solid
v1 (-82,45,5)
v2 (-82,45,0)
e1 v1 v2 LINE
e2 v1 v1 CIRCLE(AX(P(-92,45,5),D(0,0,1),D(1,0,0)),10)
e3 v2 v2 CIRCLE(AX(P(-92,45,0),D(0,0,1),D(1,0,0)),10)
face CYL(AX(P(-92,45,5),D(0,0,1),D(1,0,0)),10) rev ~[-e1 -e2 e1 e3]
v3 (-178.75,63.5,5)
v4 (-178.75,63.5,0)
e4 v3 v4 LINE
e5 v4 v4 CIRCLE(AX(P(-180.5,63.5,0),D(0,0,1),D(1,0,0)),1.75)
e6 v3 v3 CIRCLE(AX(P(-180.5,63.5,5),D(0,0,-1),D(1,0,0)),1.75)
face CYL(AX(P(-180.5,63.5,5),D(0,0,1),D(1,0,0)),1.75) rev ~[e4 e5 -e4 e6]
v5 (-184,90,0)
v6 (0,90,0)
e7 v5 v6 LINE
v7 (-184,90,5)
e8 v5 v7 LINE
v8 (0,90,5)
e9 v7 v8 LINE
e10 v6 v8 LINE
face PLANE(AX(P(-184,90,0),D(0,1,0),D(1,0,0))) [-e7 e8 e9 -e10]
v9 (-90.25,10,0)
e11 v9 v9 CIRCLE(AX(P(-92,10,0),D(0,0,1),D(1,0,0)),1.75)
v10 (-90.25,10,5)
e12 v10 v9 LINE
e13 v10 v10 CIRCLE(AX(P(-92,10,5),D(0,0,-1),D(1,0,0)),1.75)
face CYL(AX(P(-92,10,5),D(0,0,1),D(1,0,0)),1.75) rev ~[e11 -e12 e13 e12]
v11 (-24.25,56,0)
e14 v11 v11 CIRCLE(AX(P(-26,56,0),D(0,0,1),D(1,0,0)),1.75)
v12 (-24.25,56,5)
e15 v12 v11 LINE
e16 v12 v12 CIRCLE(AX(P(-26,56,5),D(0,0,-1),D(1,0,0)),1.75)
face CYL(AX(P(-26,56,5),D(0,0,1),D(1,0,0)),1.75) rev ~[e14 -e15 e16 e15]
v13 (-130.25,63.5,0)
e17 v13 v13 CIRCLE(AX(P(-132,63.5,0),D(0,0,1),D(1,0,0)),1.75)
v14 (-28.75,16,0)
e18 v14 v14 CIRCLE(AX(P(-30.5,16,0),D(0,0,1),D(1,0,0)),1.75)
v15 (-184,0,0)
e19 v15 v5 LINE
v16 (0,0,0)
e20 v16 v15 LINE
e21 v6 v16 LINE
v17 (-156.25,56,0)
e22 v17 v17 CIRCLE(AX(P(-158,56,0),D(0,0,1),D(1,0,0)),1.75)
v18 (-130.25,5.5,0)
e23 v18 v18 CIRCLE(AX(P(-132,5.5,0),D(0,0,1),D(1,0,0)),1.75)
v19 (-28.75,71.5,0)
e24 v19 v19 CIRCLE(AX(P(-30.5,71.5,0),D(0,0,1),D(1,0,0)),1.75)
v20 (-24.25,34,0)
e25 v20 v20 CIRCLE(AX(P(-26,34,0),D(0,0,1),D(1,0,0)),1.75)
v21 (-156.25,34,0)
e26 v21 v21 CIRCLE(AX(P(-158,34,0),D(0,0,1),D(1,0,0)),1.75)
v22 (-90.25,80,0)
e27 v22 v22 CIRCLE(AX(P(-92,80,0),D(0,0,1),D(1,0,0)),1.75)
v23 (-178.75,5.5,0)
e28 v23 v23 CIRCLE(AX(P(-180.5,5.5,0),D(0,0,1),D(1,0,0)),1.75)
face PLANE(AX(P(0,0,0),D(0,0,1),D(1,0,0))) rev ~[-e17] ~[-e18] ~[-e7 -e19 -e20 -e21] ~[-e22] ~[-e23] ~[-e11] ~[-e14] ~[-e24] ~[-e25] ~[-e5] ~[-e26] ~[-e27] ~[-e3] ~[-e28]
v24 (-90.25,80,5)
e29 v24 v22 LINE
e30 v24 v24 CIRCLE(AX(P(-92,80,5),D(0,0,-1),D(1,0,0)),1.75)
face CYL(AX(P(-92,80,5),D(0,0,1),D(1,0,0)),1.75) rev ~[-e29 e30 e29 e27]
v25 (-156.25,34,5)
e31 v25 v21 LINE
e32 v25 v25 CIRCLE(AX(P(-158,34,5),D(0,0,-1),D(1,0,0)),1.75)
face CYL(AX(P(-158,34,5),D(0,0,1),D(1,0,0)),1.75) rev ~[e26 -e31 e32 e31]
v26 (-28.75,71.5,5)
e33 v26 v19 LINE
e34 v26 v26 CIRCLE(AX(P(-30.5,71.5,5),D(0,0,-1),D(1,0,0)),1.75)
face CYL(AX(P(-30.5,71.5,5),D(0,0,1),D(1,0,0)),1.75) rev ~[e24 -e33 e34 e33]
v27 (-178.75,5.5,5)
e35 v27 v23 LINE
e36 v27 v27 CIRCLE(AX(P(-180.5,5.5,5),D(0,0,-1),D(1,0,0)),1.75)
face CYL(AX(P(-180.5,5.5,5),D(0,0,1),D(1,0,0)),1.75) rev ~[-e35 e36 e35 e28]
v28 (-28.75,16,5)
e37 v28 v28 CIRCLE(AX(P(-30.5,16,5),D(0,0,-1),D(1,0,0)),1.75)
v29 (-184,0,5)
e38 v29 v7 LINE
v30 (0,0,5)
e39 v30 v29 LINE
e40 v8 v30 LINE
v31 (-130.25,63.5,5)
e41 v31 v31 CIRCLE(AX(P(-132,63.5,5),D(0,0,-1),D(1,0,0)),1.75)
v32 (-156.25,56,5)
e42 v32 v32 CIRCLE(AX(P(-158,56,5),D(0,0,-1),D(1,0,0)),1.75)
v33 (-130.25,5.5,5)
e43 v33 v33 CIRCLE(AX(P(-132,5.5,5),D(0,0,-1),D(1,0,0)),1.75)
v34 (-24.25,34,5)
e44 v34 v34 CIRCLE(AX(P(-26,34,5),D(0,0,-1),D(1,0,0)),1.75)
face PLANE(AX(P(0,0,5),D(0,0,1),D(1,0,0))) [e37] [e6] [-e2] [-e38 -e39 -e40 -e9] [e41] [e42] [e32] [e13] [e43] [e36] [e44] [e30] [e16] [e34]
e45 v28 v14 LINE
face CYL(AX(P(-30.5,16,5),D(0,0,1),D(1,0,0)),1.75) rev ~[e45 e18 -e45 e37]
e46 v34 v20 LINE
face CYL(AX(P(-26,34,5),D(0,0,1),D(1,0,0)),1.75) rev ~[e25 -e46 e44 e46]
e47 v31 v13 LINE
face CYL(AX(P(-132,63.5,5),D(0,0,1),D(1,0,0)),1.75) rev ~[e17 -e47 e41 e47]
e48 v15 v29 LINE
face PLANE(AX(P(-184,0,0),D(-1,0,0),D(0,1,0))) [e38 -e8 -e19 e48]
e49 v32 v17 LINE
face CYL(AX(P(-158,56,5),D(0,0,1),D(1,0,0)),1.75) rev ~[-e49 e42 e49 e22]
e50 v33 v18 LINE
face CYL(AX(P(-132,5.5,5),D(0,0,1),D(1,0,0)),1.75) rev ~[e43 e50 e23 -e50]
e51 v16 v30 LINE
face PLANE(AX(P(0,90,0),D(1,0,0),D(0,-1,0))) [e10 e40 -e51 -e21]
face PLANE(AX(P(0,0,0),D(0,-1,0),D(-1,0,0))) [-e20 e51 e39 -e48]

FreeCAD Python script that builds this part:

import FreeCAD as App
import Part
import Sketcher
Q = App.Units.Quantity

doc = App.newDocument("Part")
body = doc.addObject("PartDesign::Body", "Body")

# Sketch on XY plane
sketch1 = body.newObject("Sketcher::SketchObject", "Sketch")
sketch1.AttachmentSupport = (doc.getObject("XY_Plane"), [""])
sketch1.MapMode = "FlatFace"
sketch1.addGeometry([
    Part.LineSegment(App.Vector(-184, 0, 0), App.Vector(0, 0, 0)),
    Part.LineSegment(App.Vector(0, 0, 0), App.Vector(0, 90, 0)),
    Part.LineSegment(App.Vector(0, 90, 0), App.Vector(-184, 90, 0)),
    Part.LineSegment(App.Vector(-184, 90, 0), App.Vector(-184, 0, 0)),
], False)
sketch1.addConstraint([
    Sketcher.Constraint("Coincident", 0, 2, 1, 1),
    Sketcher.Constraint("Coincident", 1, 2, 2, 1),
    Sketcher.Constraint("Coincident", 2, 2, 3, 1),
    Sketcher.Constraint("Coincident", 3, 2, 0, 1),
    Sketcher.Constraint("Horizontal", 0),
    Sketcher.Constraint("Vertical", 1),
    Sketcher.Constraint("Horizontal", 2),
    Sketcher.Constraint("Vertical", 3),
    Sketcher.Constraint("Coincident", 0, 2, -1, 1),
    Sketcher.Constraint("DistanceX", 0, 1, 0, 2, Q("184 mm")),
    Sketcher.Constraint("DistanceY", 1, 1, 1, 2, Q("90 mm")),
])
pad1 = body.newObject("PartDesign::Pad", "Pad")
pad1.Profile = sketch1
pad1.Length = 5

# Sketch on XY plane
sketch2 = body.newObject("Sketcher::SketchObject", "Sketch001")
sketch2.AttachmentSupport = (doc.getObject("XY_Plane"), [""])
sketch2.MapMode = "FlatFace"
sketch2.AttachmentOffset = App.Placement(App.Vector(0, 0, 5), App.Rotation())
sketch2.addGeometry([
    Part.Circle(App.Vector(-26, 56, 0), App.Vector(0, 0, 1), 1.8),
    Part.Circle(App.Vector(-26, 34, 0), App.Vector(0, 0, 1), 1.8),
    Part.Circle(App.Vector(-158, 56, 0), App.Vector(0, 0, 1), 1.8),
    Part.Circle(App.Vector(-158, 34, 0), App.Vector(0, 0, 1), 1.8),
], False)
sketch2.addConstraint([
    Sketcher.Constraint("Equal", 0, 1),
    Sketcher.Constraint("Equal", 1, 2),
    Sketcher.Constraint("Equal", 2, 3),
    Sketcher.Constraint("Horizontal", 0, 3, 2, 3),
    Sketcher.Constraint("Horizontal", 1, 3, 3, 3),
    Sketcher.Constraint("Vertical", 0, 3, 1, 3),
    Sketcher.Constraint("Vertical", 2, 3, 3, 3),
    Sketcher.Constraint("Diameter", 0, Q("3.5 mm")),
    Sketcher.Constraint("DistanceY", 1, 3, 0, 3, Q("22 mm")),
    Sketcher.Constraint("DistanceX", 2, 3, 0, 3, Q("132 mm")),
    Sketcher.Constraint("DistanceX", 0, 3, -1, 1, Q("26 mm")),
    Sketcher.Constraint("DistanceY", -1, 1, 0, 3, Q("56 mm")),
])
pocket1 = body.newObject("PartDesign::Pocket", "Pocket")
pocket1.Profile = sketch2
pocket1.Length = 5

# Sketch on XY plane
sketch3 = body.newObject("Sketcher::SketchObject", "Sketch002")
sketch3.AttachmentSupport = (doc.getObject("XY_Plane"), [""])
sketch3.MapMode = "FlatFace"
sketch3.AttachmentOffset = App.Placement(App.Vector(0, 0, 5), App.Rotation())
sketch3.addGeometry([
    Part.Circle(App.Vector(-92, 10, 0), App.Vector(0, 0, 1), 1.8),
    Part.Circle(App.Vector(-92, 80, 0), App.Vector(0, 0, 1), 1.8),
], False)
sketch3.addConstraint([
    Sketcher.Constraint("Equal", 0, 1),
    Sketcher.Constraint("Vertical", 0, 3, 1, 3),
    Sketcher.Constraint("Diameter", 0, Q("3.5 mm")),
    Sketcher.Constraint("DistanceX", 0, 3, -1, 1, Q("92 mm")),
    Sketcher.Constraint("DistanceY", -1, 1, 0, 3, Q("10 mm")),
    Sketcher.Constraint("DistanceY", 0, 3, 1, 3, Q("70 mm")),
])
pocket2 = body.newObject("PartDesign::Pocket", "Pocket001")
pocket2.Profile = sketch3
pocket2.Length = 5

# Sketch on XY plane
sketch4 = body.newObject("Sketcher::SketchObject", "Sketch003")
sketch4.AttachmentSupport = (doc.getObject("XY_Plane"), [""])
sketch4.MapMode = "FlatFace"
sketch4.AttachmentOffset = App.Placement(App.Vector(0, 0, 5), App.Rotation())
sketch4.addGeometry([
    Part.Circle(App.Vector(-30.5, 71.5, 0), App.Vector(0, 0, 1), 1.8),  # 0
    Part.Circle(App.Vector(-30.5, 16, 0), App.Vector(0, 0, 1), 1.8),  # 1
    Part.Circle(App.Vector(-180.5, 63.5, 0), App.Vector(0, 0, 1), 1.8),  # 2
    Part.Circle(App.Vector(-180.5, 5.5, 0), App.Vector(0, 0, 1), 1.8),  # 3
    Part.Circle(App.Vector(-132, 5.5, 0), App.Vector(0, 0, 1), 1.8),  # 4
    Part.Circle(App.Vector(-132, 63.5, 0), App.Vector(0, 0, 1), 1.8),  # 5
], False)
sketch4.addConstraint([
    Sketcher.Constraint("Equal", 0, 1),
    Sketcher.Constraint("Equal", 1, 2),
    Sketcher.Constraint("Equal", 2, 3),
    Sketcher.Constraint("Equal", 3, 4),
    Sketcher.Constraint("Equal", 4, 5),
    Sketcher.Constraint("Horizontal", 3, 3, 4, 3),
    Sketcher.Constraint("Horizontal", 2, 3, 5, 3),
    Sketcher.Constraint("Vertical", 0, 3, 1, 3),
    Sketcher.Constraint("Vertical", 2, 3, 3, 3),
    Sketcher.Constraint("Vertical", 4, 3, 5, 3),
    Sketcher.Constraint("Diameter", 0, Q("3.5 mm")),
    Sketcher.Constraint("DistanceY", 3, 3, 2, 3, Q("58 mm")),
    Sketcher.Constraint("DistanceY", 1, 3, 0, 3, Q("55.5 mm")),
    Sketcher.Constraint("DistanceX", 3, 3, 4, 3, Q("48.5 mm")),
    Sketcher.Constraint("DistanceY", -1, 1, 1, 3, Q("16 mm")),
    Sketcher.Constraint("DistanceX", 4, 3, -1, 1, Q("132 mm")),
    Sketcher.Constraint("DistanceX", 2, 3, 0, 3, Q("150 mm")),
    Sketcher.Constraint("DistanceY", 2, 3, 0, 3, Q("8 mm")),
])
pocket3 = body.newObject("PartDesign::Pocket", "Pocket002")
pocket3.Profile = sketch4
pocket3.Length = 5

# Sketch on XY plane
sketch5 = body.newObject("Sketcher::SketchObject", "Sketch004")
sketch5.AttachmentSupport = (doc.getObject("XY_Plane"), [""])
sketch5.MapMode = "FlatFace"
sketch5.AttachmentOffset = App.Placement(App.Vector(0, 0, 5), App.Rotation())
sketch5.addGeometry(Part.Circle(App.Vector(-92, 45, 0), App.Vector(0, 0, 1), 10), False)
sketch5.addConstraint([
    Sketcher.Constraint("Diameter", 0, Q("20 mm")),
    Sketcher.Constraint("DistanceX", 0, 3, -1, 1, Q("92 mm")),
    Sketcher.Constraint("DistanceY", -1, 1, 0, 3, Q("45 mm")),
])
pocket4 = body.newObject("PartDesign::Pocket", "Pocket003")
pocket4.Profile = sketch5
pocket4.Length = 5

doc.recompute()
